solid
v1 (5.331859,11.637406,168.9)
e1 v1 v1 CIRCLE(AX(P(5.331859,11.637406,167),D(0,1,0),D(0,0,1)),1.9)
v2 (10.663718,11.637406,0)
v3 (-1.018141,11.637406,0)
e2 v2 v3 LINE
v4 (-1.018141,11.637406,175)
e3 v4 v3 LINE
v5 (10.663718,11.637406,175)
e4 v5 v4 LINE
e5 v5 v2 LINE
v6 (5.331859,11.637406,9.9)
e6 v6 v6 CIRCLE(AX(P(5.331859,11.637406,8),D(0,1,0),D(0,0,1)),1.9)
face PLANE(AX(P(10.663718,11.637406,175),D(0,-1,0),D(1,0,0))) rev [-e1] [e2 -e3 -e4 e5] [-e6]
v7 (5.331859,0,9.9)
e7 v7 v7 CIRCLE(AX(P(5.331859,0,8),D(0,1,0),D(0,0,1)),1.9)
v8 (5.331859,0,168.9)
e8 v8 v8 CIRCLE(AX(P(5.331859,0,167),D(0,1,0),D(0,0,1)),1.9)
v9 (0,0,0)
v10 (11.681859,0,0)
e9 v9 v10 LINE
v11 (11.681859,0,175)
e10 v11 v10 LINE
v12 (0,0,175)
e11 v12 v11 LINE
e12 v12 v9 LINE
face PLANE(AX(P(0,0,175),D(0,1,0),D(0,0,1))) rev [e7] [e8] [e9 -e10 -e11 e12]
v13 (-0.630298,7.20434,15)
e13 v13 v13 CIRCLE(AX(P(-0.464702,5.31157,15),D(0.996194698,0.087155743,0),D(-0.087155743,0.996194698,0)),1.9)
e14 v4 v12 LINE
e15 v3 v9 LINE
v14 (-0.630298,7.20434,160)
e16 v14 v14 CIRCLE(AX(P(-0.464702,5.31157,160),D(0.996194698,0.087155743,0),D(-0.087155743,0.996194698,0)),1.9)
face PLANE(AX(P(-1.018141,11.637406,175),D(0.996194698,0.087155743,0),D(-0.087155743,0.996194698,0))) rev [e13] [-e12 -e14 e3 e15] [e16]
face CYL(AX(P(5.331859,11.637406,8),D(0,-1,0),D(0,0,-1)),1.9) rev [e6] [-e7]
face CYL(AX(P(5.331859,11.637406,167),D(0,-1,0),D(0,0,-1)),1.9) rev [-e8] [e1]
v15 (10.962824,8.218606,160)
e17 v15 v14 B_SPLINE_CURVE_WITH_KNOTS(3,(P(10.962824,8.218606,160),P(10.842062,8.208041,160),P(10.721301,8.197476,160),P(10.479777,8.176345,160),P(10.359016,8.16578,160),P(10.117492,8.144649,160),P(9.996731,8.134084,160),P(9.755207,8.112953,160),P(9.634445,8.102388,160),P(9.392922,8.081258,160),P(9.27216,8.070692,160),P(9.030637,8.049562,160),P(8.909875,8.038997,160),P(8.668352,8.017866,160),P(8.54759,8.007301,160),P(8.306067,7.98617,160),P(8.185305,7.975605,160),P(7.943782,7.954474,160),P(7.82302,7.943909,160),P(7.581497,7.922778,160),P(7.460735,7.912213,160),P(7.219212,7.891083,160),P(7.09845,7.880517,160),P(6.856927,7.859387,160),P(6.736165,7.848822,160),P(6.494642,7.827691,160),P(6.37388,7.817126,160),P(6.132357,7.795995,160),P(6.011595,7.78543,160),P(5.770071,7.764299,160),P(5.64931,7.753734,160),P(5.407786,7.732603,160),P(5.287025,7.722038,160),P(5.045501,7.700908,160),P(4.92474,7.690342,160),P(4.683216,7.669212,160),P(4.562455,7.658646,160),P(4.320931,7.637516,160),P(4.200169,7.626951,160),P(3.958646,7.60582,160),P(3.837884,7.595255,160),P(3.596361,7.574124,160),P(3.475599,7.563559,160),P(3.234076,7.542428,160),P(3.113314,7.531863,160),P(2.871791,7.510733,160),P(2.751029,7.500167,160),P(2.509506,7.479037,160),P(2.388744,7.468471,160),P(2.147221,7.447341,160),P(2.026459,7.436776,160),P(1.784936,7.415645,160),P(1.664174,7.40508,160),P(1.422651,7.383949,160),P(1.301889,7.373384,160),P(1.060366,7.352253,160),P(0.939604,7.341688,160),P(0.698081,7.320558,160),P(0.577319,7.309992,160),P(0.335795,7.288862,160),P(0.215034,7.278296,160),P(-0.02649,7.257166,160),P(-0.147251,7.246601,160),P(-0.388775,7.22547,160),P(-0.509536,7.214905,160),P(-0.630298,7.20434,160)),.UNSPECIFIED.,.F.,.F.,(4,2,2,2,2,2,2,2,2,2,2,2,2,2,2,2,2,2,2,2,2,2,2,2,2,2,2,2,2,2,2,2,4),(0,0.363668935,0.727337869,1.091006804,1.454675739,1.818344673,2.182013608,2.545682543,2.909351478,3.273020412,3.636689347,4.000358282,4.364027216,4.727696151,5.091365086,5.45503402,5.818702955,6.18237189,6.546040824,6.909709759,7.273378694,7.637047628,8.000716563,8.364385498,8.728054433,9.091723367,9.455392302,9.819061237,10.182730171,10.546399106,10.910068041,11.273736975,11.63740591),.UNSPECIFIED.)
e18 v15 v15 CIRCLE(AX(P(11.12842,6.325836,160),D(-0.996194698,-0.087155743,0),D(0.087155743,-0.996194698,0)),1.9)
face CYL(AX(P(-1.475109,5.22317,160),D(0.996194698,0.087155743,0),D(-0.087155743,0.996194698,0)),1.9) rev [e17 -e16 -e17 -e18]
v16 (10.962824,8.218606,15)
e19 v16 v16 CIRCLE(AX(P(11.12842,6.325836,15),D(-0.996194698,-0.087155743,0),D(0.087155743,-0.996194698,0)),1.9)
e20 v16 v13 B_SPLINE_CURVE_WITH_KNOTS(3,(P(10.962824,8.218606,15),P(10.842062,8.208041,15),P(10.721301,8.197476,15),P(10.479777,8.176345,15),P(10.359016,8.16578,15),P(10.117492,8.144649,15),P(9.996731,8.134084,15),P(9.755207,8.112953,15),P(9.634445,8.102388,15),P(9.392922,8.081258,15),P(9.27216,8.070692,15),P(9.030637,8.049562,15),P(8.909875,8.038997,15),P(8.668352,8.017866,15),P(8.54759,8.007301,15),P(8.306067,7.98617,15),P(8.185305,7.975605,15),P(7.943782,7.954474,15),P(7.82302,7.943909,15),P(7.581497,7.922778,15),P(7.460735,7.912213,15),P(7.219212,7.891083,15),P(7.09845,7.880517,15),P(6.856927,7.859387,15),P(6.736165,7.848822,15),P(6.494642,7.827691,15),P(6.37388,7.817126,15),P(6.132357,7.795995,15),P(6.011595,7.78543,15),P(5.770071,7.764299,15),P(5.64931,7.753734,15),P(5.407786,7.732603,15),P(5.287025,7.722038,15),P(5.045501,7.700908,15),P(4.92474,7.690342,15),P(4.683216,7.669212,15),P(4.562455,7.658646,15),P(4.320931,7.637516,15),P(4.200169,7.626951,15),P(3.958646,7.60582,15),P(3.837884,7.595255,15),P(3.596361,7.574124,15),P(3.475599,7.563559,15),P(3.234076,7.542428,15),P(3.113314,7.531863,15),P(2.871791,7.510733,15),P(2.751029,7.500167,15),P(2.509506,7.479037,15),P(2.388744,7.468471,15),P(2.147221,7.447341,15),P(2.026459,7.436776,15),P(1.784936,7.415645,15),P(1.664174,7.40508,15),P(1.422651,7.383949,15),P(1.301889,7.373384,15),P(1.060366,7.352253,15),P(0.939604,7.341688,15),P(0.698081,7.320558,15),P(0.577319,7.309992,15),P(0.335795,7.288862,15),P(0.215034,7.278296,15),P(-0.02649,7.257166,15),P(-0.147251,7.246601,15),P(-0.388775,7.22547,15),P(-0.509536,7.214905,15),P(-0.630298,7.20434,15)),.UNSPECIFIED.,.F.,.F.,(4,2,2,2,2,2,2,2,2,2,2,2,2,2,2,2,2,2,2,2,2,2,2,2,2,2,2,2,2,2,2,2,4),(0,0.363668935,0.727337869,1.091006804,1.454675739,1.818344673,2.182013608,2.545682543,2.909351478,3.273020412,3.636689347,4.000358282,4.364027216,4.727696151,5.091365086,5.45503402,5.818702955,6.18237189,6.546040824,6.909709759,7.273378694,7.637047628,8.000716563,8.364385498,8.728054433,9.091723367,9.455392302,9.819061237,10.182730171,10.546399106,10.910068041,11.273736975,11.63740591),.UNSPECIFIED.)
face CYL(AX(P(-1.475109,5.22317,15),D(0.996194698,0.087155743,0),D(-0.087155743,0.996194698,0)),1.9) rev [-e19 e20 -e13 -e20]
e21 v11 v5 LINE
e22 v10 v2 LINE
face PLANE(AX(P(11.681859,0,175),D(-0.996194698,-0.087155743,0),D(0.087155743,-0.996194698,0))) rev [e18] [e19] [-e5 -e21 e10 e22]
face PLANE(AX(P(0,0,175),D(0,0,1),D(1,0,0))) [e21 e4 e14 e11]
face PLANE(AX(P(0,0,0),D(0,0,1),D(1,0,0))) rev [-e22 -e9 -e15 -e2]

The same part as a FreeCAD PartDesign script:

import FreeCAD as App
import Part
import Sketcher

V = App.Vector
Q = App.Units.Quantity


def add_polygon(sketch, points):
    """Adds a closed chain of lines whose ends are joined by coincident constraints."""
    first, n = sketch.GeometryCount, len(points)
    for a, b in zip(points, points[1:] + points[:1]):
        sketch.addGeometry(Part.LineSegment(App.Vector(*a, 0), App.Vector(*b, 0)), False)
    for i in range(n):
        sketch.addConstraint(Sketcher.Constraint("Coincident", first + i, 2, first + (i + 1) % n, 1))

doc = App.newDocument("Part")
params = doc.addObject("Spreadsheet::Sheet", "Params")
for row, (alias, value) in enumerate([
    ("pad1_length", "175 mm"),
    ("sketch2_diameter", "3.8 mm"),
    ("sketch3_diameter", "3.8 mm"),
], start=1):
    params.set(f"A{row}", alias)
    params.set(f"B{row}", "=" + value)
    params.setAlias(f"B{row}", alias)

body = doc.addObject("PartDesign::Body", "Body")

sketch1 = body.newObject("Sketcher::SketchObject", "Sketch")
sketch1.AttachmentSupport = (doc.getObject("XY_Plane"), [""])
sketch1.MapMode = "FlatFace"
add_polygon(sketch1, [(0, 0), (12, 0), (11, 12), (-1, 12)])
sketch1.addConstraint([
    Sketcher.Constraint("Horizontal", 0),
    Sketcher.Constraint("Horizontal", 2),
    Sketcher.Constraint("Coincident", 3, 2, -1, 1),
    Sketcher.Constraint("Parallel", 1, 3),
    Sketcher.Constraint("Angle", 1, Q("95 deg")),
    Sketcher.Constraint("DistanceX", 2, 2, 0, 2, 12.7),
    Sketcher.Constraint("DistanceX", 0, 1, 0, 2, 11.681859),
])
pad1 = body.newObject("PartDesign::Pad", "Pad")
pad1.Profile = sketch1
pad1.setExpression("Length", "Params.pad1_length")

sketch2 = body.newObject("Sketcher::SketchObject", "Sketch001")
sketch2.AttachmentSupport = (doc.getObject("XZ_Plane"), [""])
sketch2.MapMode = "FlatFace"
sketch2.addGeometry([
    Part.Circle(V(5.3, 8, 0), V(0, 0, 1), 1.9),
    Part.Circle(V(5.3, 167, 0), V(0, 0, 1), 1.9),
], False)
sketch2.addConstraint([
    Sketcher.Constraint("Equal", 0, 1),
    Sketcher.Constraint("Vertical", 0, 3, 1, 3),
    Sketcher.Constraint("Diameter", 0, 3.8),
    Sketcher.Constraint("DistanceY", -1, 1, 0, 3, 8.0),
    Sketcher.Constraint("DistanceY", -1, 1, 1, 3, 167.0),
    Sketcher.Constraint("DistanceX", -1, 1, 0, 3, 5.331859),
])
sketch2.setExpression("Constraints[2]", "Params.sketch2_diameter")
pocket1 = body.newObject("PartDesign::Pocket", "Pocket")
pocket1.Profile = sketch2
pocket1.Type = "ThroughAll"

sketch3 = body.newObject("Sketcher::SketchObject", "Sketch002")
sketch3.Placement = App.Placement(V(11.593122, 1.014267, 0), App.Rotation(V(0, 0, -1), V(-0.087155743, 0.996194698, 0), V(0.996194698, 0.087155743, 0), "ZXY"))
sketch3.addGeometry([
    Part.Circle(V(-160, 5.3, 0), V(0, 0, 1), 1.9),
    Part.Circle(V(-15, 5.3, 0), V(0, 0, 1), 1.9),
], False)
sketch3.addConstraint([
    Sketcher.Constraint("Equal", 0, 1),
    Sketcher.Constraint("Horizontal", 0, 3, 1, 3),
    Sketcher.Constraint("Diameter", 0, 3.8),
    Sketcher.Constraint("DistanceX", 0, 3, -1, 1, 160.0),
    Sketcher.Constraint("DistanceX", 1, 3, -1, 1, 15.0),
    Sketcher.Constraint("DistanceY", -1, 1, 0, 3, 5.331859),
])
sketch3.setExpression("Constraints[2]", "Params.sketch3_diameter")
pocket2 = body.newObject("PartDesign::Pocket", "Pocket001")
pocket2.Profile = sketch3
pocket2.Type = "ThroughAll"
pocket2.Midplane = True

doc.recompute()
